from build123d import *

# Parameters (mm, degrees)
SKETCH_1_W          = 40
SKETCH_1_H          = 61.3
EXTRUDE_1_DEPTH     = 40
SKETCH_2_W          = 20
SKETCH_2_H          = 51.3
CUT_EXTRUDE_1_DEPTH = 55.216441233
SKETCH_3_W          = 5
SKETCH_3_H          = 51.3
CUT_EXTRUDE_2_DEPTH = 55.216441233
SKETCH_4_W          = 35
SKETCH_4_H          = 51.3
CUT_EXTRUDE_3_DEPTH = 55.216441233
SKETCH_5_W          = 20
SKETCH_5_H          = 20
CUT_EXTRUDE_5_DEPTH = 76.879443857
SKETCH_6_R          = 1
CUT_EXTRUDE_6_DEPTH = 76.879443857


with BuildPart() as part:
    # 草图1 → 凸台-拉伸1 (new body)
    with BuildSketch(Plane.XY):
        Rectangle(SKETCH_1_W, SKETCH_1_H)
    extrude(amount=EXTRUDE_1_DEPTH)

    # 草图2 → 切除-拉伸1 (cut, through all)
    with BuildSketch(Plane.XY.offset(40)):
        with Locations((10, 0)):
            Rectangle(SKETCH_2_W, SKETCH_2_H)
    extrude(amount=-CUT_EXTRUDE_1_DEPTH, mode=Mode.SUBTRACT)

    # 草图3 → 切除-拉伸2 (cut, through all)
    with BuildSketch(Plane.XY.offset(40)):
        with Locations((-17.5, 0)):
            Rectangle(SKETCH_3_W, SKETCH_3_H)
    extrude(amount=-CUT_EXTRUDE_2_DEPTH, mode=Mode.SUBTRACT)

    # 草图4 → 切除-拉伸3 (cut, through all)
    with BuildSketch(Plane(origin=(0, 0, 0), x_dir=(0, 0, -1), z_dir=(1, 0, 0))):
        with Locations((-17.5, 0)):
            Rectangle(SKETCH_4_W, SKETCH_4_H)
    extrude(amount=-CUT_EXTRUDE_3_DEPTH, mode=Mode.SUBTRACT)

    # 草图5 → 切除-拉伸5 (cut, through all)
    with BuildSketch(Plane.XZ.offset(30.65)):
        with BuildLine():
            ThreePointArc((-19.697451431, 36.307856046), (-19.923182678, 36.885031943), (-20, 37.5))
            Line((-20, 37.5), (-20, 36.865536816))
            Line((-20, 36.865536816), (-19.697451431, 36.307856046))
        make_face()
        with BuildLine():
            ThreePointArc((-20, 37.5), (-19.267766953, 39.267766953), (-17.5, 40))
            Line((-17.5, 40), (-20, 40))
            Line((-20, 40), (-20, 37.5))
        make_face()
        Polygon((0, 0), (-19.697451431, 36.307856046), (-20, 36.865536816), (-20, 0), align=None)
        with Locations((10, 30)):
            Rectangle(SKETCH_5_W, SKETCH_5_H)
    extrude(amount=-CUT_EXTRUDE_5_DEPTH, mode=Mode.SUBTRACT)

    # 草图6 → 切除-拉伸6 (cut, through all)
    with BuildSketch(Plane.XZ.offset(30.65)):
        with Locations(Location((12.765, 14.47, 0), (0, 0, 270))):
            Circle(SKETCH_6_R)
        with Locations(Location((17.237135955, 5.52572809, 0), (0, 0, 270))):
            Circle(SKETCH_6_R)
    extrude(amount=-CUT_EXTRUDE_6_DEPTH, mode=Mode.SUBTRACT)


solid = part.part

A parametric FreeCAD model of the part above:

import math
import FreeCAD as App
import Part
import Sketcher

V = App.Vector
Q = App.Units.Quantity


def add_polygon(sketch, points):
    """Adds a closed chain of lines whose ends are joined by coincident constraints."""
    first, n = sketch.GeometryCount, len(points)
    for a, b in zip(points, points[1:] + points[:1]):
        sketch.addGeometry(Part.LineSegment(App.Vector(*a, 0), App.Vector(*b, 0)), False)
    for i in range(n):
        sketch.addConstraint(Sketcher.Constraint("Coincident", first + i, 2, first + (i + 1) % n, 1))

doc = App.newDocument("Part")
body = doc.addObject("PartDesign::Body", "Body")

# Sketch on XY plane
sketch1 = doc.addObject("Sketcher::SketchObject", "Sketch")
body.addObject(sketch1)
sketch1.AttachmentSupport = (doc.XY_Plane, [""])
sketch1.MapMode = "FlatFace"
add_polygon(sketch1, [(-20, 31), (-20, -31), (20, -31), (20, 31)])  # lines 0-3
sketch1.addConstraint(Sketcher.Constraint("Vertical", 0))
sketch1.addConstraint(Sketcher.Constraint("Horizontal", 1))
sketch1.addConstraint(Sketcher.Constraint("Vertical", 2))
sketch1.addConstraint(Sketcher.Constraint("Horizontal", 3))
sketch1.addConstraint(Sketcher.Constraint("Symmetric", 0, 2, 2, 2, -1, 1))
sketch1.addConstraint(Sketcher.Constraint("DistanceX", 1, 1, 1, 2, Q("40 mm")))
sketch1.addConstraint(Sketcher.Constraint("DistanceY", 0, 2, 0, 1, Q("61.3 mm")))
pad1 = doc.addObject("PartDesign::Pad", "Pad")
body.addObject(pad1)
pad1.Profile = sketch1
pad1.Length = 40

# Sketch on XY plane
sketch2 = doc.addObject("Sketcher::SketchObject", "Sketch001")
body.addObject(sketch2)
sketch2.AttachmentSupport = (doc.XY_Plane, [""])
sketch2.MapMode = "FlatFace"
sketch2.AttachmentOffset = App.Placement(V(0, 0, 40), App.Rotation())
add_polygon(sketch2, [(0, 26), (0, -26), (20, -26), (20, 26)])  # lines 0-3
sketch2.addConstraint(Sketcher.Constraint("Vertical", 0))
sketch2.addConstraint(Sketcher.Constraint("Horizontal", 1))
sketch2.addConstraint(Sketcher.Constraint("Vertical", 2))
sketch2.addConstraint(Sketcher.Constraint("Horizontal", 3))
sketch2.addConstraint(Sketcher.Constraint("Symmetric", 0, 2, 3, 2, -1, 1))
sketch2.addConstraint(Sketcher.Constraint("DistanceX", 1, 1, 1, 2, Q("20 mm")))
sketch2.addConstraint(Sketcher.Constraint("DistanceY", 0, 2, 0, 1, Q("51.3 mm")))
pocket1 = doc.addObject("PartDesign::Pocket", "Pocket")
body.addObject(pocket1)
pocket1.Profile = sketch2
pocket1.Type = "ThroughAll"

# Sketch on XY plane
sketch3 = doc.addObject("Sketcher::SketchObject", "Sketch002")
body.addObject(sketch3)
sketch3.AttachmentSupport = (doc.XY_Plane, [""])
sketch3.MapMode = "FlatFace"
sketch3.AttachmentOffset = App.Placement(V(0, 0, 40), App.Rotation())
add_polygon(sketch3, [(-20, 26), (-20, -26), (-15, -26), (-15, 26)])  # lines 0-3
sketch3.addConstraint(Sketcher.Constraint("Vertical", 0))
sketch3.addConstraint(Sketcher.Constraint("Horizontal", 1))
sketch3.addConstraint(Sketcher.Constraint("Vertical", 2))
sketch3.addConstraint(Sketcher.Constraint("Horizontal", 3))
sketch3.addConstraint(Sketcher.Constraint("DistanceX", 1, 1, 1, 2, Q("5 mm")))
sketch3.addConstraint(Sketcher.Constraint("DistanceY", 0, 2, 0, 1, Q("51.3 mm")))
sketch3.addConstraint(Sketcher.Constraint("DistanceX", 0, 2, -1, 1, Q("20 mm")))
sketch3.addConstraint(Sketcher.Constraint("DistanceY", 0, 2, -1, 1, Q("25.65 mm")))
pocket2 = doc.addObject("PartDesign::Pocket", "Pocket001")
body.addObject(pocket2)
pocket2.Profile = sketch3
pocket2.Type = "ThroughAll"

# Sketch on YZ plane
sketch4 = doc.addObject("Sketcher::SketchObject", "Sketch003")
body.addObject(sketch4)
sketch4.AttachmentSupport = (doc.YZ_Plane, [""])
sketch4.MapMode = "FlatFace"
add_polygon(sketch4, [(26, 35), (-26, 35), (-26, 0), (26, 0)])  # lines 0-3
sketch4.addConstraint(Sketcher.Constraint("Horizontal", 0))
sketch4.addConstraint(Sketcher.Constraint("Vertical", 1))
sketch4.addConstraint(Sketcher.Constraint("Horizontal", 2))
sketch4.addConstraint(Sketcher.Constraint("Vertical", 3))
sketch4.addConstraint(Sketcher.Constraint("Symmetric", 1, 2, 2, 2, -1, 1))
sketch4.addConstraint(Sketcher.Constraint("DistanceY", 1, 2, 1, 1, Q("35 mm")))
sketch4.addConstraint(Sketcher.Constraint("DistanceX", 0, 2, 0, 1, Q("51.3 mm")))
pocket3 = doc.addObject("PartDesign::Pocket", "Pocket002")
body.addObject(pocket3)
pocket3.Profile = sketch4
pocket3.Type = "ThroughAll"

# Sketch on XZ plane
sketch5 = doc.addObject("Sketcher::SketchObject", "Sketch004")
body.addObject(sketch5)
sketch5.AttachmentSupport = (doc.XZ_Plane, [""])
sketch5.MapMode = "FlatFace"
sketch5.AttachmentOffset = App.Placement(V(0, 0, 30.65), App.Rotation())
sketch5.addGeometry(Part.ArcOfCircle(Part.Circle(V(-17.5, 37.5, 0), V(0, 0, 1), 2.5), math.radians(180), math.radians(208)), False)  # 0
sketch5.addGeometry(Part.LineSegment(V(-20, 37.5, 0), V(-20, 0, 0)), False)  # 1
sketch5.addGeometry(Part.LineSegment(V(-20, 0, 0), V(0, 0, 0)), False)  # 2
sketch5.addGeometry(Part.LineSegment(V(0, 0, 0), V(-19.7, 36.3, 0)), False)  # 3
sketch5.addGeometry(Part.ArcOfCircle(Part.Circle(V(-17.5, 37.5, 0), V(0, 0, 1), 2.5), math.radians(90), math.radians(180)), False)  # 4
sketch5.addGeometry(Part.LineSegment(V(-17.5, 40, 0), V(-20, 40, 0)), False)  # 5
sketch5.addGeometry(Part.LineSegment(V(-20, 40, 0), V(-20, 37.5, 0)), False)  # 6
add_polygon(sketch5, [(0, 40), (0, 20), (20, 20), (20, 40)])  # lines 7-10
sketch5.addConstraint(Sketcher.Constraint("Tangent", 0, 1, 1, 1))
sketch5.addConstraint(Sketcher.Constraint("Coincident", 1, 2, 2, 1))
sketch5.addConstraint(Sketcher.Constraint("Coincident", 2, 2, 3, 1))
sketch5.addConstraint(Sketcher.Constraint("Tangent", 3, 2, 0, 2))
sketch5.addConstraint(Sketcher.Constraint("Tangent", 4, 1, 5, 1))
sketch5.addConstraint(Sketcher.Constraint("Coincident", 5, 2, 6, 1))
sketch5.addConstraint(Sketcher.Constraint("Tangent", 6, 2, 4, 2))
sketch5.addConstraint(Sketcher.Constraint("Vertical", 1))
sketch5.addConstraint(Sketcher.Constraint("Horizontal", 2))
sketch5.addConstraint(Sketcher.Constraint("Horizontal", 5))
sketch5.addConstraint(Sketcher.Constraint("Vertical", 6))
sketch5.addConstraint(Sketcher.Constraint("Vertical", 7))
sketch5.addConstraint(Sketcher.Constraint("Horizontal", 8))
sketch5.addConstraint(Sketcher.Constraint("Vertical", 9))
sketch5.addConstraint(Sketcher.Constraint("Horizontal", 10))
sketch5.addConstraint(Sketcher.Constraint("Coincident", 2, 2, -1, 1))
sketch5.addConstraint(Sketcher.Constraint("Coincident", 4, 3, 0, 3))
sketch5.addConstraint(Sketcher.Constraint("Equal", 0, 4))
sketch5.addConstraint(Sketcher.Constraint("Symmetric", 5, 2, 9, 2, -2))
sketch5.addConstraint(Sketcher.Constraint("PointOnObject", 7, 2, -2))
sketch5.addConstraint(Sketcher.Constraint("Equal", 10, 7))
sketch5.addConstraint(Sketcher.Constraint("Radius", 0, Q("2.5 mm")))
sketch5.addConstraint(Sketcher.Constraint("DistanceX", 2, 1, 2, 2, Q("20 mm")))
sketch5.addConstraint(Sketcher.Constraint("DistanceY", 1, 2, 1, 1, Q("37.5 mm")))
pocket4 = doc.addObject("PartDesign::Pocket", "Pocket003")
body.addObject(pocket4)
pocket4.Profile = sketch5
pocket4.Type = "ThroughAll"

# Sketch on XZ plane
sketch6 = doc.addObject("Sketcher::SketchObject", "Sketch005")
body.addObject(sketch6)
sketch6.AttachmentSupport = (doc.XZ_Plane, [""])
sketch6.MapMode = "FlatFace"
sketch6.AttachmentOffset = App.Placement(V(0, 0, 30.65), App.Rotation())
sketch6.addGeometry(Part.Circle(V(12.8, 14.5, 0), V(0, 0, 1), 1), False)
sketch6.addGeometry(Part.Circle(V(17.2, 5.5, 0), V(0, 0, 1), 1), False)
sketch6.addConstraint(Sketcher.Constraint("Equal", 0, 1))
sketch6.addConstraint(Sketcher.Constraint("Diameter", 0, Q("2 mm")))
sketch6.addConstraint(Sketcher.Constraint("DistanceY", -1, 1, 0, 3, Q("14.47 mm")))
sketch6.addConstraint(Sketcher.Constraint("DistanceX", -1, 1, 0, 3, Q("12.765 mm")))
sketch6.addConstraint(Sketcher.Constraint("DistanceY", -1, 1, 1, 3, Q("5.525728 mm")))
sketch6.addConstraint(Sketcher.Constraint("DistanceX", -1, 1, 1, 3, Q("17.237136 mm")))
pocket5 = doc.addObject("PartDesign::Pocket", "Pocket004")
body.addObject(pocket5)
pocket5.Profile = sketch6
pocket5.Type = "ThroughAll"

doc.recompute()
